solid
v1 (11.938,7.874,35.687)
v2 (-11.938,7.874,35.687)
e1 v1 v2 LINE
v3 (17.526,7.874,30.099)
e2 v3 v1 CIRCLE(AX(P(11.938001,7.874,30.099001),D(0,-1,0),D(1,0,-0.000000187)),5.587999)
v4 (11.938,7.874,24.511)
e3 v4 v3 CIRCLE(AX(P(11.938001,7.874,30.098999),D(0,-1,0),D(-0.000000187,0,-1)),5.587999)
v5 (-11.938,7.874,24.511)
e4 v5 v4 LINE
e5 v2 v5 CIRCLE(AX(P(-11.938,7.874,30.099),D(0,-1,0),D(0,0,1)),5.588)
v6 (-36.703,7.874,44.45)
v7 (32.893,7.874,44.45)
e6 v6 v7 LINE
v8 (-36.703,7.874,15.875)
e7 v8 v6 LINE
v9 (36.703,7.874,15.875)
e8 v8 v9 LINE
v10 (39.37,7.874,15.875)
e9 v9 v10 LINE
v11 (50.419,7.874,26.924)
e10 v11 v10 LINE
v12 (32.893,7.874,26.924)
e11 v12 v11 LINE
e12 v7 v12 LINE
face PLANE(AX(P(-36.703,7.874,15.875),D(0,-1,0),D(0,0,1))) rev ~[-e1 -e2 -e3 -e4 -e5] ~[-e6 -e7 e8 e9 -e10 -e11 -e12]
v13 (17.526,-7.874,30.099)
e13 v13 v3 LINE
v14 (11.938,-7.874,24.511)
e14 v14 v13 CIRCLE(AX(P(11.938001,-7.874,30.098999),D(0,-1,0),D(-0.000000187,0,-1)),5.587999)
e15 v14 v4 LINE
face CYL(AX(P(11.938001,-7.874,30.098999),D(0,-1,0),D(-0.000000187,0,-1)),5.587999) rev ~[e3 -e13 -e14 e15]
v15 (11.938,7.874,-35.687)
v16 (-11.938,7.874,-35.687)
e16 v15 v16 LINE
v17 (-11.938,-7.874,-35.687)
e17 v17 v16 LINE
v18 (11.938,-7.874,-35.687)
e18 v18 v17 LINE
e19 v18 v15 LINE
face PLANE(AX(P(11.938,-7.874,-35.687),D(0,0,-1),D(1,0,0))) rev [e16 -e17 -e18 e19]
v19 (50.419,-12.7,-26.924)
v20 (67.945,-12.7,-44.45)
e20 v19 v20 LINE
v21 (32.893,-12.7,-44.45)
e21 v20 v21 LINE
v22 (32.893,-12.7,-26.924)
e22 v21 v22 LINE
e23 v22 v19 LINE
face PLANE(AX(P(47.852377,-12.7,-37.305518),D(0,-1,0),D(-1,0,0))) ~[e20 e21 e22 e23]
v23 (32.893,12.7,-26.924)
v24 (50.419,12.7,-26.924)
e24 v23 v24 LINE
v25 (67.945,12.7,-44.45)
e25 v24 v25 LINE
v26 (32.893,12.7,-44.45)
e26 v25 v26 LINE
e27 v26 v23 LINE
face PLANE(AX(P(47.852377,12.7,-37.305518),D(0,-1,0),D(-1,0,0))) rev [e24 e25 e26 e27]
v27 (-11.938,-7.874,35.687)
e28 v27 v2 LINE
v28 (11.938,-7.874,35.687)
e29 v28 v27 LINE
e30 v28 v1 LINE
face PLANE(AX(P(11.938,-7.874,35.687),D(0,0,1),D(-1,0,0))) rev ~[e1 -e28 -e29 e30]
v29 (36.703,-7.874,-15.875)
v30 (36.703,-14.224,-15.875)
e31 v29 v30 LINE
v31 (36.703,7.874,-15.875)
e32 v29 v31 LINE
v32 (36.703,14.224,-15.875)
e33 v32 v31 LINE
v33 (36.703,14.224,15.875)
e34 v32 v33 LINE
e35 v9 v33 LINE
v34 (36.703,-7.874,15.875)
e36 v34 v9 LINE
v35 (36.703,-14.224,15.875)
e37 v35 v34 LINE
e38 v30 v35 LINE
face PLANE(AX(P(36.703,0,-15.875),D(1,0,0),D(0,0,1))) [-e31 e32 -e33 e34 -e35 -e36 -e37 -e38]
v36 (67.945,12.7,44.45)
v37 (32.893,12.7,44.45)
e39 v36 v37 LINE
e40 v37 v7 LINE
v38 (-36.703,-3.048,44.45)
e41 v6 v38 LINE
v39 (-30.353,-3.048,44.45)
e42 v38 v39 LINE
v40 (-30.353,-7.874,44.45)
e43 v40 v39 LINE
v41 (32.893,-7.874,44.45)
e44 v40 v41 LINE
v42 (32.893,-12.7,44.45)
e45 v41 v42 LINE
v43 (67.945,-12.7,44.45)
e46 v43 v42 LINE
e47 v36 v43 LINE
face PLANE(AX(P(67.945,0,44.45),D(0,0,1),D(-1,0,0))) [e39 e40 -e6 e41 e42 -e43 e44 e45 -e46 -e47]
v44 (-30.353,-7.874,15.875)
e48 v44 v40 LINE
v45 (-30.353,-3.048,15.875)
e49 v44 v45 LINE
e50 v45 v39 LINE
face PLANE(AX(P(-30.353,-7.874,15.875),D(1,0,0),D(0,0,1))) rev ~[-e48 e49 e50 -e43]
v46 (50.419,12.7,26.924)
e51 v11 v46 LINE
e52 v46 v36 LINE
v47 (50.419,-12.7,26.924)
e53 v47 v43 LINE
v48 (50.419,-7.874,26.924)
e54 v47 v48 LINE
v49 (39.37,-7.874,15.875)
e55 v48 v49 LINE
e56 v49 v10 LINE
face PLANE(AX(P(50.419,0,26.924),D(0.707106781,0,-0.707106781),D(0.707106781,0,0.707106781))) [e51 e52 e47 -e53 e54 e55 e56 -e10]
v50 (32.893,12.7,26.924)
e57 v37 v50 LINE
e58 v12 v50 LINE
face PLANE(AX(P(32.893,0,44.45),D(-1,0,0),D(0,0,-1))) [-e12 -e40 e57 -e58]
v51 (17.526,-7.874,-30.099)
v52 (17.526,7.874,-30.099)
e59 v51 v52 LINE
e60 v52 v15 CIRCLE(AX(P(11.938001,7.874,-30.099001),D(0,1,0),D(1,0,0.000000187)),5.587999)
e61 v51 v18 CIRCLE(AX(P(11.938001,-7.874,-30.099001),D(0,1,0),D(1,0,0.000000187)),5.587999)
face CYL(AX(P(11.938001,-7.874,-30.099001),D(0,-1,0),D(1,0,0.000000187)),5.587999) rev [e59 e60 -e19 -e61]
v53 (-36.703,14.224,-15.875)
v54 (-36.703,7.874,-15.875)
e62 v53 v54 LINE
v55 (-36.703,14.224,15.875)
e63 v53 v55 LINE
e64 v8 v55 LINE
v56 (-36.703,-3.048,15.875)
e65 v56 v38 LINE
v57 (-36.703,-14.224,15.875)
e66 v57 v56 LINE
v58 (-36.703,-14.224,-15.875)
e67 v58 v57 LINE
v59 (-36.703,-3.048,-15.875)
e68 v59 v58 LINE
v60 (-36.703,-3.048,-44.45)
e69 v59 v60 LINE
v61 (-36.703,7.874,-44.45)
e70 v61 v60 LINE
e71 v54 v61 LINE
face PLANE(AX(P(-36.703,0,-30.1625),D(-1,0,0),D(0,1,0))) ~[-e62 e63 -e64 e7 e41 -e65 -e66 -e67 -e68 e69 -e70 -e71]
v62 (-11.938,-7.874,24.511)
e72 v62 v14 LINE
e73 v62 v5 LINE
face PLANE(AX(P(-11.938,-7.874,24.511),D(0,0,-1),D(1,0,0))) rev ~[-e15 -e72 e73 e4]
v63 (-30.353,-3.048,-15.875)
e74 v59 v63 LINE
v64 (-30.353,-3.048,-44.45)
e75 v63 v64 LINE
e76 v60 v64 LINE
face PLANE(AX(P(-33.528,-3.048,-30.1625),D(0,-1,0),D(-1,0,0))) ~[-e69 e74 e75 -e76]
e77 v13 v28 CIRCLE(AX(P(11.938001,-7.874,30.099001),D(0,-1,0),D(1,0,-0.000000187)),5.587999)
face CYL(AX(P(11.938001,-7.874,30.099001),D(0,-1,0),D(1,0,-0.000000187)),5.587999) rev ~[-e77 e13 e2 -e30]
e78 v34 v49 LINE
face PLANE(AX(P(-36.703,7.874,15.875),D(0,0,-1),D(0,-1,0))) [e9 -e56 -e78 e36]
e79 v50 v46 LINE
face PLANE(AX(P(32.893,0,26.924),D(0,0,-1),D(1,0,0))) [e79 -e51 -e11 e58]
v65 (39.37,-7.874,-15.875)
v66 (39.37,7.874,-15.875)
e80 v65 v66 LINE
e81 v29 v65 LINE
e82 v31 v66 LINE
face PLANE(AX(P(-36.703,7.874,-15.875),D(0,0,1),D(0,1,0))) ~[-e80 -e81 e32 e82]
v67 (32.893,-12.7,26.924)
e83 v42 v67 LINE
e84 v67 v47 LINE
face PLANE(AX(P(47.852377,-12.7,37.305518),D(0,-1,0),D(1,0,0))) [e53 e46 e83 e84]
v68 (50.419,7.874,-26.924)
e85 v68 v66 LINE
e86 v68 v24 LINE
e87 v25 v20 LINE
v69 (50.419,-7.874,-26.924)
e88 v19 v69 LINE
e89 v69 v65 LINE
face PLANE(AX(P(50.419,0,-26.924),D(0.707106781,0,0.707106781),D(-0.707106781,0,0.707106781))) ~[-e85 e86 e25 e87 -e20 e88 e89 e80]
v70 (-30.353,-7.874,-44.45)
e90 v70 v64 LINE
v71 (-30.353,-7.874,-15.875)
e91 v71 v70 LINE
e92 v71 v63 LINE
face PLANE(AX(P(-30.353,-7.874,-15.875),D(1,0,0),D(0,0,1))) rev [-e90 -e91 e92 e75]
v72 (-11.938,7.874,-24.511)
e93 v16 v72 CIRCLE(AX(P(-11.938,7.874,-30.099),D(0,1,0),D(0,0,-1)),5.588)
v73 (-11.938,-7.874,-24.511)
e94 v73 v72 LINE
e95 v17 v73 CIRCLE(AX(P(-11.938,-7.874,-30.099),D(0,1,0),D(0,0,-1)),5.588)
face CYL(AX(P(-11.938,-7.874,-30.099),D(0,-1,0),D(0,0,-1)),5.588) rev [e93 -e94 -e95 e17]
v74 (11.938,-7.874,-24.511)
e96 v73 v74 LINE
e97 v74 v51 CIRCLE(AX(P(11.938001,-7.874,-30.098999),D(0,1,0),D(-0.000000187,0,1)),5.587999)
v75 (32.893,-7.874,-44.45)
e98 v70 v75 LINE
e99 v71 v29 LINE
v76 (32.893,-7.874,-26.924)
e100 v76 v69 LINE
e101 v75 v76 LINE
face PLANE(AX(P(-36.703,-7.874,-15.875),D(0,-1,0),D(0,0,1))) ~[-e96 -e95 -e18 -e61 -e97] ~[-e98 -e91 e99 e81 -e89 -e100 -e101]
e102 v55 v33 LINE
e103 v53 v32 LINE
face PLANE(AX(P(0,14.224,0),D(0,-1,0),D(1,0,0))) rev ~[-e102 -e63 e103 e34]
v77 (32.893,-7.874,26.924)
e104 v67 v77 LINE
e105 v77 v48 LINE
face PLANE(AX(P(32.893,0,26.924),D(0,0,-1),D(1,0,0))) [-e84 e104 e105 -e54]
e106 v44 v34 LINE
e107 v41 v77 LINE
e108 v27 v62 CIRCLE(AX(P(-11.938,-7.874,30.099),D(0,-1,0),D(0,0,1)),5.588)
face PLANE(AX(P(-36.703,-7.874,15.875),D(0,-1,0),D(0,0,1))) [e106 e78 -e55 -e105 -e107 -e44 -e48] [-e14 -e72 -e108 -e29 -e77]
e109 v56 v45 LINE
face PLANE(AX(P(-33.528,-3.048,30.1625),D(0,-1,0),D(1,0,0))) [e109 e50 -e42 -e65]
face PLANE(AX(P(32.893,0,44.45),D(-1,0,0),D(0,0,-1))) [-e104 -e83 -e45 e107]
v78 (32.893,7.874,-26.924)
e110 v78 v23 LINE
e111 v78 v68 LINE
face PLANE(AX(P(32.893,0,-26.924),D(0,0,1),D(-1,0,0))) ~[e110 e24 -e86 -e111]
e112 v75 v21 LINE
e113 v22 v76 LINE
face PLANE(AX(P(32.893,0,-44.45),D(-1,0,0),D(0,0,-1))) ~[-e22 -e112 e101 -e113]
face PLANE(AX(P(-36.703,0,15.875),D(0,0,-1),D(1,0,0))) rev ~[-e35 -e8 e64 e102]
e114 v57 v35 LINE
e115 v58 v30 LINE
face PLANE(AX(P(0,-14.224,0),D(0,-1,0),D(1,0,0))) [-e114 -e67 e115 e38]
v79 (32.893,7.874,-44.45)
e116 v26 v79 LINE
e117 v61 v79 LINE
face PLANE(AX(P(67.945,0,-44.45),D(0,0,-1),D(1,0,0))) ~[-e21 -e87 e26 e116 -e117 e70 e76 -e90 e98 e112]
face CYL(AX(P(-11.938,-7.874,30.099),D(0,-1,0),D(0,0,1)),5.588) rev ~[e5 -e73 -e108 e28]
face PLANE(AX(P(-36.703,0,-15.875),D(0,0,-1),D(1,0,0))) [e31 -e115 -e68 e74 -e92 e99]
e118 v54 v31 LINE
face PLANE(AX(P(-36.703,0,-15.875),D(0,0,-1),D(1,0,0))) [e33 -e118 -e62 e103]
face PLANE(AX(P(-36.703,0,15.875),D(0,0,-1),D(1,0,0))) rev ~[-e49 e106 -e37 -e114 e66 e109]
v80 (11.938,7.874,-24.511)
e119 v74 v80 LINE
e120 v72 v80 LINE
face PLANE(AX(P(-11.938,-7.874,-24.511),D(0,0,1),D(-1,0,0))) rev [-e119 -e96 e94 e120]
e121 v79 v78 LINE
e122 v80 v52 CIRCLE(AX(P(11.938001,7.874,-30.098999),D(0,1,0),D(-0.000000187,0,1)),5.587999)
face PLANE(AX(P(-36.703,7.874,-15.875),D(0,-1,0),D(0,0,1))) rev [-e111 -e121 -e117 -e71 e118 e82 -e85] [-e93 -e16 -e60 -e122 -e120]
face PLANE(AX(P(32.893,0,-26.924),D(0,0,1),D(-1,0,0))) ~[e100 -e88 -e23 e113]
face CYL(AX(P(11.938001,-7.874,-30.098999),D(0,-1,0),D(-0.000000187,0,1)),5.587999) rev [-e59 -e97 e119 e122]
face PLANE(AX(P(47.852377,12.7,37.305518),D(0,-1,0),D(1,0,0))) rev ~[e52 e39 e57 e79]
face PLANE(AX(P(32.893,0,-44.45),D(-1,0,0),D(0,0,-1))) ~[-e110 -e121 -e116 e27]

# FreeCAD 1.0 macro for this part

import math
import FreeCAD as App
import Part
import Sketcher
Q = App.Units.Quantity

doc = App.newDocument("Part")
params = doc.addObject("Spreadsheet::Sheet", "Params")
for row, (alias, value) in enumerate([
    ("sketch1_width", "2.89 in"),
    ("sketch1_height", "1.25 in"),
    ("pad1_length", "1.12 in"),
    ("sketch2_width", "0.62 in"),
    ("sketch2_height", "1.125 in"),
    ("pad2_length", "4.12 in"),
    ("sketch3_width", "1.125 in"),
    ("sketch4_width", "1.38 in"),
    ("pad3_length", "1 in"),
    ("sketch5_width", "0.25 in"),
    ("sketch5_height", "1.125 in"),
    ("pocket2_length", "0.19 in"),
    ("sketch6_radius", "0.22 in"),
    ("sketch6_width", "0.94 in"),
], start=1):
    params.set(f"A{row}", alias)
    params.set(f"B{row}", "=" + value)
    params.setAlias(f"B{row}", alias)

body = doc.addObject("PartDesign::Body", "Body")

sketch1 = doc.addObject("Sketcher::SketchObject", "Sketch")
body.addObject(sketch1)
sketch1.AttachmentSupport = (doc.XZ_Plane, [""])
sketch1.MapMode = "FlatFace"
sketch1.addGeometry(Part.LineSegment(App.Vector(-37, 16, 0), App.Vector(-37, -16, 0)), False)
sketch1.addGeometry(Part.LineSegment(App.Vector(-37, -16, 0), App.Vector(37, -16, 0)), False)
sketch1.addGeometry(Part.LineSegment(App.Vector(37, -16, 0), App.Vector(37, 16, 0)), False)
sketch1.addGeometry(Part.LineSegment(App.Vector(37, 16, 0), App.Vector(-37, 16, 0)), False)
sketch1.addConstraint(Sketcher.Constraint("Coincident", 0, 2, 1, 1))
sketch1.addConstraint(Sketcher.Constraint("Coincident", 1, 2, 2, 1))
sketch1.addConstraint(Sketcher.Constraint("Coincident", 2, 2, 3, 1))
sketch1.addConstraint(Sketcher.Constraint("Coincident", 3, 2, 0, 1))
sketch1.addConstraint(Sketcher.Constraint("Vertical", 0))
sketch1.addConstraint(Sketcher.Constraint("Horizontal", 1))
sketch1.addConstraint(Sketcher.Constraint("Vertical", 2))
sketch1.addConstraint(Sketcher.Constraint("Horizontal", 3))
sketch1.addConstraint(Sketcher.Constraint("Symmetric", 0, 2, 2, 2, -1, 1))
sketch1.addConstraint(Sketcher.Constraint("DistanceX", 1, 1, 1, 2, Q("2.89 in")))
sketch1.addConstraint(Sketcher.Constraint("DistanceY", 0, 2, 0, 1, Q("1.25 in")))
sketch1.setExpression("Constraints[9]", "Params.sketch1_width")
sketch1.setExpression("Constraints[10]", "Params.sketch1_height")
pad1 = doc.addObject("PartDesign::Pad", "Pad")
body.addObject(pad1)
pad1.Profile = sketch1
pad1.setExpression("Length", "Params.pad1_length")
pad1.Midplane = True

sketch2 = doc.addObject("Sketcher::SketchObject", "Sketch001")
body.addObject(sketch2)
sketch2.AttachmentSupport = (doc.YZ_Plane, [""])
sketch2.MapMode = "FlatFace"
sketch2.AttachmentOffset = App.Placement(App.Vector(0, 0, -1.445 * 25.4), App.Rotation())
sketch2.addGeometry(Part.LineSegment(App.Vector(8, 44, 0), App.Vector(8, 16, 0)), False)
sketch2.addGeometry(Part.LineSegment(App.Vector(8, 16, 0), App.Vector(-8, 16, 0)), False)
sketch2.addGeometry(Part.LineSegment(App.Vector(-8, 16, 0), App.Vector(-8, 44, 0)), False)
sketch2.addGeometry(Part.LineSegment(App.Vector(-8, 44, 0), App.Vector(8, 44, 0)), False)
sketch2.addConstraint(Sketcher.Constraint("Coincident", 0, 2, 1, 1))
sketch2.addConstraint(Sketcher.Constraint("Coincident", 1, 2, 2, 1))
sketch2.addConstraint(Sketcher.Constraint("Coincident", 2, 2, 3, 1))
sketch2.addConstraint(Sketcher.Constraint("Coincident", 3, 2, 0, 1))
sketch2.addConstraint(Sketcher.Constraint("Vertical", 0))
sketch2.addConstraint(Sketcher.Constraint("Horizontal", 1))
sketch2.addConstraint(Sketcher.Constraint("Vertical", 2))
sketch2.addConstraint(Sketcher.Constraint("Horizontal", 3))
sketch2.addConstraint(Sketcher.Constraint("DistanceX", 1, 2, 1, 1, Q("0.62 in")))
sketch2.addConstraint(Sketcher.Constraint("DistanceY", 0, 2, 0, 1, Q("1.125 in")))
sketch2.addConstraint(Sketcher.Constraint("DistanceX", -1, 1, 0, 2, Q("0.31 in")))
sketch2.addConstraint(Sketcher.Constraint("DistanceY", -1, 1, 2, 2, Q("1.75 in")))
sketch2.setExpression("Constraints[8]", "Params.sketch2_width")
sketch2.setExpression("Constraints[9]", "Params.sketch2_height")
pad2 = doc.addObject("PartDesign::Pad", "Pad001")
body.addObject(pad2)
pad2.Profile = sketch2
pad2.setExpression("Length", "Params.pad2_length")

sketch3 = doc.addObject("Sketcher::SketchObject", "Sketch002")
body.addObject(sketch3)
sketch3.AttachmentSupport = (doc.XZ_Plane, [""])
sketch3.MapMode = "FlatFace"
sketch3.AttachmentOffset = App.Placement(App.Vector(0, 0, 0.31 * 25.4), App.Rotation())
sketch3.addGeometry(Part.LineSegment(App.Vector(68, 16, 0), App.Vector(68, 44, 0)), False)
sketch3.addGeometry(Part.LineSegment(App.Vector(68, 44, 0), App.Vector(39, 16, 0)), False)
sketch3.addGeometry(Part.LineSegment(App.Vector(39, 16, 0), App.Vector(68, 16, 0)), False)
sketch3.addConstraint(Sketcher.Constraint("Coincident", 0, 2, 1, 1))
sketch3.addConstraint(Sketcher.Constraint("Coincident", 1, 2, 2, 1))
sketch3.addConstraint(Sketcher.Constraint("Coincident", 2, 2, 0, 1))
sketch3.addConstraint(Sketcher.Constraint("Vertical", 0))
sketch3.addConstraint(Sketcher.Constraint("Horizontal", 2))
sketch3.addConstraint(Sketcher.Constraint("Equal", 2, 0))
sketch3.addConstraint(Sketcher.Constraint("DistanceX", 2, 1, 2, 2, Q("1.125 in")))
sketch3.addConstraint(Sketcher.Constraint("DistanceY", -1, 1, 0, 2, Q("1.75 in")))
sketch3.addConstraint(Sketcher.Constraint("DistanceX", -1, 1, 1, 2, Q("1.55 in")))
sketch3.setExpression("Constraints[6]", "Params.sketch3_width")
pocket1 = doc.addObject("PartDesign::Pocket", "Pocket")
body.addObject(pocket1)
pocket1.Profile = sketch3
pocket1.Type = "ThroughAll"

sketch4 = doc.addObject("Sketcher::SketchObject", "Sketch003")
body.addObject(sketch4)
sketch4.AttachmentSupport = (doc.XZ_Plane, [""])
sketch4.MapMode = "FlatFace"
sketch4.addGeometry(Part.LineSegment(App.Vector(50, 27, 0), App.Vector(68, 44, 0)), False)
sketch4.addGeometry(Part.LineSegment(App.Vector(68, 44, 0), App.Vector(33, 44, 0)), False)
sketch4.addGeometry(Part.LineSegment(App.Vector(33, 44, 0), App.Vector(33, 27, 0)), False)
sketch4.addGeometry(Part.LineSegment(App.Vector(33, 27, 0), App.Vector(50, 27, 0)), False)
sketch4.addConstraint(Sketcher.Constraint("Coincident", 0, 2, 1, 1))
sketch4.addConstraint(Sketcher.Constraint("Coincident", 1, 2, 2, 1))
sketch4.addConstraint(Sketcher.Constraint("Coincident", 2, 2, 3, 1))
sketch4.addConstraint(Sketcher.Constraint("Coincident", 3, 2, 0, 1))
sketch4.addConstraint(Sketcher.Constraint("Horizontal", 1))
sketch4.addConstraint(Sketcher.Constraint("Vertical", 2))
sketch4.addConstraint(Sketcher.Constraint("Horizontal", 3))
sketch4.addConstraint(Sketcher.Constraint("Equal", 3, 2))
sketch4.addConstraint(Sketcher.Constraint("Angle", 0, Q("45 deg")))
sketch4.addConstraint(Sketcher.Constraint("DistanceX", 1, 2, 1, 1, Q("1.38 in")))
sketch4.addConstraint(Sketcher.Constraint("DistanceY", -1, 1, 0, 2, Q("1.75 in")))
sketch4.addConstraint(Sketcher.Constraint("DistanceX", -1, 1, 0, 2, Q("2.675 in")))
sketch4.setExpression("Constraints[9]", "Params.sketch4_width")
pad3 = doc.addObject("PartDesign::Pad", "Pad002")
body.addObject(pad3)
pad3.Profile = sketch4
pad3.setExpression("Length", "Params.pad3_length")
pad3.Midplane = True

sketch5 = doc.addObject("Sketcher::SketchObject", "Sketch004")
body.addObject(sketch5)
sketch5.AttachmentSupport = (doc.XZ_Plane, [""])
sketch5.MapMode = "FlatFace"
sketch5.AttachmentOffset = App.Placement(App.Vector(0, 0, 0.31 * 25.4), App.Rotation())
sketch5.addGeometry(Part.LineSegment(App.Vector(-37, 44, 0), App.Vector(-37, 16, 0)), False)
sketch5.addGeometry(Part.LineSegment(App.Vector(-37, 16, 0), App.Vector(-30, 16, 0)), False)
sketch5.addGeometry(Part.LineSegment(App.Vector(-30, 16, 0), App.Vector(-30, 44, 0)), False)
sketch5.addGeometry(Part.LineSegment(App.Vector(-30, 44, 0), App.Vector(-37, 44, 0)), False)
sketch5.addConstraint(Sketcher.Constraint("Coincident", 0, 2, 1, 1))
sketch5.addConstraint(Sketcher.Constraint("Coincident", 1, 2, 2, 1))
sketch5.addConstraint(Sketcher.Constraint("Coincident", 2, 2, 3, 1))
sketch5.addConstraint(Sketcher.Constraint("Coincident", 3, 2, 0, 1))
sketch5.addConstraint(Sketcher.Constraint("Vertical", 0))
sketch5.addConstraint(Sketcher.Constraint("Horizontal", 1))
sketch5.addConstraint(Sketcher.Constraint("Vertical", 2))
sketch5.addConstraint(Sketcher.Constraint("Horizontal", 3))
sketch5.addConstraint(Sketcher.Constraint("DistanceX", 1, 1, 1, 2, Q("0.25 in")))
sketch5.addConstraint(Sketcher.Constraint("DistanceY", 0, 2, 0, 1, Q("1.125 in")))
sketch5.addConstraint(Sketcher.Constraint("DistanceY", -1, 1, 2, 2, Q("1.75 in")))
sketch5.addConstraint(Sketcher.Constraint("DistanceX", 0, 2, -1, 1, Q("1.445 in")))
sketch5.setExpression("Constraints[8]", "Params.sketch5_width")
sketch5.setExpression("Constraints[9]", "Params.sketch5_height")
pocket2 = doc.addObject("PartDesign::Pocket", "Pocket001")
body.addObject(pocket2)
pocket2.Profile = sketch5
pocket2.setExpression("Length", "Params.pocket2_length")

sketch6 = doc.addObject("Sketcher::SketchObject", "Sketch005")
body.addObject(sketch6)
sketch6.AttachmentSupport = (doc.XZ_Plane, [""])
sketch6.MapMode = "FlatFace"
sketch6.AttachmentOffset = App.Placement(App.Vector(0, 0, 0.31 * 25.4), App.Rotation())
sketch6.addGeometry(Part.LineSegment(App.Vector(-12, 25, 0), App.Vector(12, 25, 0)), False)
sketch6.addGeometry(Part.ArcOfCircle(Part.Circle(App.Vector(12, 30, 0), App.Vector(0, 0, 1), 6), math.radians(-90), math.radians(0)), False)
sketch6.addGeometry(Part.ArcOfCircle(Part.Circle(App.Vector(12, 30, 0), App.Vector(0, 0, 1), 6), math.radians(0), math.radians(90)), False)
sketch6.addGeometry(Part.LineSegment(App.Vector(12, 36, 0), App.Vector(-12, 36, 0)), False)
sketch6.addGeometry(Part.ArcOfCircle(Part.Circle(App.Vector(-12, 30, 0), App.Vector(0, 0, 1), 6), math.radians(90), math.radians(270)), False)
sketch6.addConstraint(Sketcher.Constraint("Tangent", 0, 2, 1, 1))
sketch6.addConstraint(Sketcher.Constraint("Tangent", 1, 2, 2, 1))
sketch6.addConstraint(Sketcher.Constraint("Tangent", 2, 2, 3, 1))
sketch6.addConstraint(Sketcher.Constraint("Tangent", 3, 2, 4, 1))
sketch6.addConstraint(Sketcher.Constraint("Tangent", 4, 2, 0, 1))
sketch6.addConstraint(Sketcher.Constraint("Horizontal", 0))
sketch6.addConstraint(Sketcher.Constraint("Horizontal", 3))
sketch6.addConstraint(Sketcher.Constraint("Equal", 1, 2))
sketch6.addConstraint(Sketcher.Constraint("Horizontal", 4, 3, 1, 2))
sketch6.addConstraint(Sketcher.Constraint("Radius", 1, Q("0.22 in")))
sketch6.addConstraint(Sketcher.Constraint("DistanceX", 0, 1, 0, 2, Q("0.94 in")))
sketch6.addConstraint(Sketcher.Constraint("DistanceX", -1, 1, 1, 3, Q("0.47 in")))
sketch6.addConstraint(Sketcher.Constraint("DistanceY", -1, 1, 1, 3, Q("1.185 in")))
sketch6.setExpression("Constraints[9]", "Params.sketch6_radius")
sketch6.setExpression("Constraints[10]", "Params.sketch6_width")
pocket3 = doc.addObject("PartDesign::Pocket", "Pocket002")
body.addObject(pocket3)
pocket3.Profile = sketch6
pocket3.Type = "ThroughAll"
body2 = doc.addObject("PartDesign::Body", "Body001")
doc.recompute()

body2.BaseFeature = body
doc.recompute()

mirroring = doc.addObject("Part::Mirroring", "Mirroring")
mirroring.Source = body
mirroring.Base = App.Vector(0, 0, 0)
mirroring.Normal = App.Vector(0, 0, 1)
body3 = doc.addObject("PartDesign::Body", "Body002")
body3.BaseFeature = mirroring
boolean = doc.addObject("PartDesign::Boolean", "Boolean")
body2.addObject(boolean)
boolean.Type = "Fuse"
boolean.addObjects([body3])
doc.recompute()
mirroring.Visibility = False

doc.recompute()
